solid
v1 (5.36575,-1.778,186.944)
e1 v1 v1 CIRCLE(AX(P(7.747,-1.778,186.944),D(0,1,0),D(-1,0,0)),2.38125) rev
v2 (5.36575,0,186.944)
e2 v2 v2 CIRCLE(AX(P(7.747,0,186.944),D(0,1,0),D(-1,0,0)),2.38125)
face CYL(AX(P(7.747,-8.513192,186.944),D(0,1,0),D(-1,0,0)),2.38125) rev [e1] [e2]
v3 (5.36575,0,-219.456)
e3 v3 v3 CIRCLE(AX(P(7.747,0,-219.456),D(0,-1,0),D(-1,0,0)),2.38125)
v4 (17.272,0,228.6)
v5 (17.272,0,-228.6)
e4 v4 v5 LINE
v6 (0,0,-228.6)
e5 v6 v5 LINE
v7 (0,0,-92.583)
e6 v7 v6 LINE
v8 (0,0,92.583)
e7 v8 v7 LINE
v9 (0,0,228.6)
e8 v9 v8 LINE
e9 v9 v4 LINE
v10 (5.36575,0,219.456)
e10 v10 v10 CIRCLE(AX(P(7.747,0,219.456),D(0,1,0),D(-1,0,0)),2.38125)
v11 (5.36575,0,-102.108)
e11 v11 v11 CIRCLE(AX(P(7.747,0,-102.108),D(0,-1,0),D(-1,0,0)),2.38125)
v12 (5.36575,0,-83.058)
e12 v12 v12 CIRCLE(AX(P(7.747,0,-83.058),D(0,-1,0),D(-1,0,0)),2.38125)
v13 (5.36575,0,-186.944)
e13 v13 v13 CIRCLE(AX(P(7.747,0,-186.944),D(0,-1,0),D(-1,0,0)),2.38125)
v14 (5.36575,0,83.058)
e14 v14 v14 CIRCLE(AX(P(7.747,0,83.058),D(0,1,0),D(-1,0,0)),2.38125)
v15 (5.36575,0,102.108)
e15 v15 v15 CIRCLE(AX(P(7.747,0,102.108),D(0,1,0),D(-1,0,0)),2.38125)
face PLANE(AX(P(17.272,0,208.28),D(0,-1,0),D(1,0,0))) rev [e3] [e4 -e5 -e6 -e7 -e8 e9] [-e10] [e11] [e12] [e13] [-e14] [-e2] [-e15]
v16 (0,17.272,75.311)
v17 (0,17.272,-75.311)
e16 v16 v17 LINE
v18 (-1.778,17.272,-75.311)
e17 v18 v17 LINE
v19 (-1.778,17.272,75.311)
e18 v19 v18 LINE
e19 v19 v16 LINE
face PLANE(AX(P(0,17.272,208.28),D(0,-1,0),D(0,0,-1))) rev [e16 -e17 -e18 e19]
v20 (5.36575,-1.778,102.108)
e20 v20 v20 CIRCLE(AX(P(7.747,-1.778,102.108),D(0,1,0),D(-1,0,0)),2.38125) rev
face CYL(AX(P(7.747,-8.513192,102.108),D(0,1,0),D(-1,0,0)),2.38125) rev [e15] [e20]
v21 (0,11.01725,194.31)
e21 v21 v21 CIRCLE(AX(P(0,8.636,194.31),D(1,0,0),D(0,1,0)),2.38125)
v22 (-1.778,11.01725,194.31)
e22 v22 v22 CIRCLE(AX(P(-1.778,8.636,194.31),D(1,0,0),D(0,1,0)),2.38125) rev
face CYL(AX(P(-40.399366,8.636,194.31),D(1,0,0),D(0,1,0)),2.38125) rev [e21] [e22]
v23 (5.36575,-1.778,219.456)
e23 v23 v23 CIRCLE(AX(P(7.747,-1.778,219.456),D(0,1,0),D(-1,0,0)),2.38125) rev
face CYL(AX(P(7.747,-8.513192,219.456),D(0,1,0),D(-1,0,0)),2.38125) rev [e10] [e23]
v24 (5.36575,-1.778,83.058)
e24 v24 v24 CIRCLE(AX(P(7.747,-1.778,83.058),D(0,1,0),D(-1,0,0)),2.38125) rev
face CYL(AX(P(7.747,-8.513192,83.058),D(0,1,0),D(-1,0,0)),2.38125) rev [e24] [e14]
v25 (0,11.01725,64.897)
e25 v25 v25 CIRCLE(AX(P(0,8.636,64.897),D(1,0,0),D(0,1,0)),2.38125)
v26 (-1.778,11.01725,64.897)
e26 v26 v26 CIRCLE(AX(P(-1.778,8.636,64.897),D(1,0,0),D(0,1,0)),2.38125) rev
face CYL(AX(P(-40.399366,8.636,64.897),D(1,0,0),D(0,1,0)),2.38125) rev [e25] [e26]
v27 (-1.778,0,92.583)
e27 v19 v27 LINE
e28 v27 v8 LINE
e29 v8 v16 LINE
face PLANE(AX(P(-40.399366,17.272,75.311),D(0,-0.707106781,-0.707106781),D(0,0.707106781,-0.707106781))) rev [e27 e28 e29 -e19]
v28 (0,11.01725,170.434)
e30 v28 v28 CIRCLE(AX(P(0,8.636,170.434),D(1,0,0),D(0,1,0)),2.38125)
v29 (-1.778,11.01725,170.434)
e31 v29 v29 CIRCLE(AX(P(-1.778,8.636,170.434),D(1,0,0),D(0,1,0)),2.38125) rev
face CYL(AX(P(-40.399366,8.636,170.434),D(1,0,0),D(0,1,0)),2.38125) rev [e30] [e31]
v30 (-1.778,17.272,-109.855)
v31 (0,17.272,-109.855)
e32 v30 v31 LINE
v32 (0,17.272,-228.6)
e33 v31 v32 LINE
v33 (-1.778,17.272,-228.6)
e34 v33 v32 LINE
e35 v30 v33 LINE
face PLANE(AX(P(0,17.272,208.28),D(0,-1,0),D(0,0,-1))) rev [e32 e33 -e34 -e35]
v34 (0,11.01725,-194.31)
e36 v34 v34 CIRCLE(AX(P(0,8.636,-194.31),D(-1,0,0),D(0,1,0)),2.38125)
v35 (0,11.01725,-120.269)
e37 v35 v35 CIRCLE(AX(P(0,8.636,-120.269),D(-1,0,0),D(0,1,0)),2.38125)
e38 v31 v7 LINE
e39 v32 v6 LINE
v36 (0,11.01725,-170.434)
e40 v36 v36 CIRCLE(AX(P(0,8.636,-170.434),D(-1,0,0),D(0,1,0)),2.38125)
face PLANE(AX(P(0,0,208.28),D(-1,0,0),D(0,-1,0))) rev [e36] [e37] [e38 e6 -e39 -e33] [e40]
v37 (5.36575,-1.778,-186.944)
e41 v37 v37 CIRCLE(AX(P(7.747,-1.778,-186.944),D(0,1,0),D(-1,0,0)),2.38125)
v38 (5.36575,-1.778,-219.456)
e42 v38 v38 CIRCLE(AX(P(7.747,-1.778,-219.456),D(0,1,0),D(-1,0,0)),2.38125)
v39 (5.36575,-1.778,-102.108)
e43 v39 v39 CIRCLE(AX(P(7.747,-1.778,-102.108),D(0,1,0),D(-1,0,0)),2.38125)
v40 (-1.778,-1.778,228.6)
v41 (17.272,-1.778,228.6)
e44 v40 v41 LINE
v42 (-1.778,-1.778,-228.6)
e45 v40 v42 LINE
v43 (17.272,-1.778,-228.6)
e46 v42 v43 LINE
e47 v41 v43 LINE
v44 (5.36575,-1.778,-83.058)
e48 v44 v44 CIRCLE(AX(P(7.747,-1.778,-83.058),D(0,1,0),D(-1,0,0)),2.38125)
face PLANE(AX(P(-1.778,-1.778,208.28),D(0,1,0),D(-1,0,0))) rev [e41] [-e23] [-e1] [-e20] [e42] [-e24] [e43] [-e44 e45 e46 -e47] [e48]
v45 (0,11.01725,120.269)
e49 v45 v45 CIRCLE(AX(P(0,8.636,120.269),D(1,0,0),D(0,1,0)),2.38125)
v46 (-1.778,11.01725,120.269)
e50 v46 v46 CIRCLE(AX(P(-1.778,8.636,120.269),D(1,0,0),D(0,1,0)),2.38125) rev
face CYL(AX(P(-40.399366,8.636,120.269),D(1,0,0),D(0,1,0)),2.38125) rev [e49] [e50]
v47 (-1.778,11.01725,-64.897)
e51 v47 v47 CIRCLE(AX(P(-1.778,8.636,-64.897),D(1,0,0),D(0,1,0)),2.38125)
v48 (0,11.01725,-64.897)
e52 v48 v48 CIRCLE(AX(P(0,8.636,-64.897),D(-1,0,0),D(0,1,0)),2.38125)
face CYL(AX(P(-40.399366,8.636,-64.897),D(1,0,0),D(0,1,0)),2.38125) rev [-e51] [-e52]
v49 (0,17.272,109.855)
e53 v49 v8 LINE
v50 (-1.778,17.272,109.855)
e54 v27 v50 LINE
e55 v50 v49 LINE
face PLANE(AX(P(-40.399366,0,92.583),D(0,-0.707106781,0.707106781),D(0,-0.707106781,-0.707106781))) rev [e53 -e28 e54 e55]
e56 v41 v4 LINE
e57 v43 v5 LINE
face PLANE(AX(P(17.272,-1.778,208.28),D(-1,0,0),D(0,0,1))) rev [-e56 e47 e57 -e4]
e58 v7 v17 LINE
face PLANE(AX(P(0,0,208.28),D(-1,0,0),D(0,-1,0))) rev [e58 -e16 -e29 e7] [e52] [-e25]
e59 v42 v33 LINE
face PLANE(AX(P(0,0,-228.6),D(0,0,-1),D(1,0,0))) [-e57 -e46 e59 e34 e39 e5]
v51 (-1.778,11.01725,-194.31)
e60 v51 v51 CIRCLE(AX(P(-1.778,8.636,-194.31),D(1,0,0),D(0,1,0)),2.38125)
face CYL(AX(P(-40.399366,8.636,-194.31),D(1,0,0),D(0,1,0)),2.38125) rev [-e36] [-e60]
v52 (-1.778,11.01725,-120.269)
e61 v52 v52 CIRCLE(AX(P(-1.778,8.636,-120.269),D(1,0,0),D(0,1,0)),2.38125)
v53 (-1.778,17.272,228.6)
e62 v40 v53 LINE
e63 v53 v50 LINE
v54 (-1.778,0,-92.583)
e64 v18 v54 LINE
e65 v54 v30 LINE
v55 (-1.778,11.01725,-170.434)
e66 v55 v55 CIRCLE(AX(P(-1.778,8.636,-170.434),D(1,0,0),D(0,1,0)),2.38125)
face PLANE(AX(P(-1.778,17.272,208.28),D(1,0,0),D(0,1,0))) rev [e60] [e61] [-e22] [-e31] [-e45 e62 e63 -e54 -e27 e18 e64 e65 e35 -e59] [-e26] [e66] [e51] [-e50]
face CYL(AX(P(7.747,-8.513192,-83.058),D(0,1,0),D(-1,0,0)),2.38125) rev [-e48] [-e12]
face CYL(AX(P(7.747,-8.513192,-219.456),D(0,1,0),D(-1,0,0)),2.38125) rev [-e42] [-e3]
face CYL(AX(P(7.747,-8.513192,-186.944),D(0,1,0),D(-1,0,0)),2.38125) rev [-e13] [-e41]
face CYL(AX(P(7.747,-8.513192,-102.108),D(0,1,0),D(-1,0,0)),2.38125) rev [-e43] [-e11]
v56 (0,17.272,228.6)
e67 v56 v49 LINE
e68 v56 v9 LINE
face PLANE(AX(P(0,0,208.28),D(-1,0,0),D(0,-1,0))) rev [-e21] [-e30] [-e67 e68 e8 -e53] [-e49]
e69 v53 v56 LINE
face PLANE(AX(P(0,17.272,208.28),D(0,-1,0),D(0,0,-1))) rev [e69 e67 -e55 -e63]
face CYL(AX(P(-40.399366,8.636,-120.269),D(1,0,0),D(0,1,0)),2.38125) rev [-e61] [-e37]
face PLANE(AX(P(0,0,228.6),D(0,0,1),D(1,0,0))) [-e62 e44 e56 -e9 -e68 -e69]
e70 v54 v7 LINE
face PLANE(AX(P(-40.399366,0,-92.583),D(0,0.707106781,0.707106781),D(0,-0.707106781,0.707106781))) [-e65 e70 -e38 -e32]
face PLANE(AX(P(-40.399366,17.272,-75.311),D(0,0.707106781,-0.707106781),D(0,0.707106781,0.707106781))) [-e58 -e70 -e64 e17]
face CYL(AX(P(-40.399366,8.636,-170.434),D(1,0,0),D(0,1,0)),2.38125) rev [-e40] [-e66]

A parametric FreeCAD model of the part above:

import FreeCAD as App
import Part
import Sketcher
Q = App.Units.Quantity

doc = App.newDocument("Part")
body = doc.addObject("PartDesign::Body", "Body")

sketch1 = body.newObject("Sketcher::SketchObject", "Sketch")
sketch1.AttachmentSupport = (doc.getObject("XY_Plane"), [""])
sketch1.MapMode = "FlatFace"
sketch1.addGeometry(Part.LineSegment(App.Vector(0, 0, 0), App.Vector(0, 17.272, 0)), False)
sketch1.addGeometry(Part.LineSegment(App.Vector(0, 17.272, 0), App.Vector(-1.778, 17.272, 0)), False)
sketch1.addGeometry(Part.LineSegment(App.Vector(-1.778, 17.272, 0), App.Vector(-1.778, -1.778, 0)), False)
sketch1.addGeometry(Part.LineSegment(App.Vector(-1.778, -1.778, 0), App.Vector(17.272, -1.778, 0)), False)
sketch1.addGeometry(Part.LineSegment(App.Vector(17.272, -1.778, 0), App.Vector(17.272, 0, 0)), False)
sketch1.addGeometry(Part.LineSegment(App.Vector(17.272, 0, 0), App.Vector(0, 0, 0)), False)
sketch1.addConstraint(Sketcher.Constraint("Coincident", 0, 2, 1, 1))
sketch1.addConstraint(Sketcher.Constraint("Coincident", 1, 2, 2, 1))
sketch1.addConstraint(Sketcher.Constraint("Coincident", 2, 2, 3, 1))
sketch1.addConstraint(Sketcher.Constraint("Coincident", 3, 2, 4, 1))
sketch1.addConstraint(Sketcher.Constraint("Coincident", 4, 2, 5, 1))
sketch1.addConstraint(Sketcher.Constraint("Coincident", 5, 2, 0, 1))
sketch1.addConstraint(Sketcher.Constraint("Vertical", 0))
sketch1.addConstraint(Sketcher.Constraint("Horizontal", 1))
sketch1.addConstraint(Sketcher.Constraint("Vertical", 2))
sketch1.addConstraint(Sketcher.Constraint("Horizontal", 3))
sketch1.addConstraint(Sketcher.Constraint("Vertical", 4))
sketch1.addConstraint(Sketcher.Constraint("Horizontal", 5))
sketch1.addConstraint(Sketcher.Constraint("Coincident", 5, 2, -1, 1))
sketch1.addConstraint(Sketcher.Constraint("Equal", 5, 0))
sketch1.addConstraint(Sketcher.Constraint("Equal", 3, 2))
sketch1.addConstraint(Sketcher.Constraint("DistanceX", 1, 2, 1, 1, Q("0.07 in")))
sketch1.addConstraint(Sketcher.Constraint("DistanceX", 3, 1, 3, 2, Q("0.75 in")))
pad1 = body.newObject("PartDesign::Pad", "Pad")
pad1.Profile = sketch1
pad1.Length = Q("8.2 in")

sketch2 = body.newObject("Sketcher::SketchObject", "Sketch001")
sketch2.AttachmentSupport = (doc.getObject("YZ_Plane"), [""])
sketch2.MapMode = "FlatFace"
sketch2.addGeometry(Part.Circle(App.Vector(8.636, 194.31, 0), App.Vector(0, 0, 1), 2.38125), False)
sketch2.addGeometry(Part.Circle(App.Vector(8.636, 170.434, 0), App.Vector(0, 0, 1), 2.38125), False)
sketch2.addGeometry(Part.Circle(App.Vector(8.636, 120.269, 0), App.Vector(0, 0, 1), 2.38125), False)
sketch2.addGeometry(Part.Circle(App.Vector(8.636, 64.897, 0), App.Vector(0, 0, 1), 2.38125), False)
sketch2.addGeometry(Part.LineSegment(App.Vector(17.272, 109.855, 0), App.Vector(0, 92.583, 0)), False)
sketch2.addGeometry(Part.LineSegment(App.Vector(0, 92.583, 0), App.Vector(17.272, 75.311, 0)), False)
sketch2.addGeometry(Part.LineSegment(App.Vector(17.272, 75.311, 0), App.Vector(17.272, 109.855, 0)), False)
sketch2.addConstraint(Sketcher.Constraint("Coincident", 4, 2, 5, 1))
sketch2.addConstraint(Sketcher.Constraint("Coincident", 5, 2, 6, 1))
sketch2.addConstraint(Sketcher.Constraint("Coincident", 6, 2, 4, 1))
sketch2.addConstraint(Sketcher.Constraint("Vertical", 6))
sketch2.addConstraint(Sketcher.Constraint("Equal", 0, 1))
sketch2.addConstraint(Sketcher.Constraint("Equal", 1, 2))
sketch2.addConstraint(Sketcher.Constraint("Equal", 2, 3))
sketch2.addConstraint(Sketcher.Constraint("PointOnObject", 4, 2, -2))
sketch2.addConstraint(Sketcher.Constraint("Perpendicular", 4, 5))
sketch2.addConstraint(Sketcher.Constraint("Vertical", 0, 3, 1, 3))
sketch2.addConstraint(Sketcher.Constraint("Vertical", 1, 3, 2, 3))
sketch2.addConstraint(Sketcher.Constraint("Vertical", 2, 3, 3, 3))
sketch2.addConstraint(Sketcher.Constraint("Equal", 4, 5))
sketch2.addConstraint(Sketcher.Constraint("Diameter", 0, Q("0.1875 in")))
sketch2.addConstraint(Sketcher.Constraint("DistanceY", 6, 1, 6, 2, Q("1.36 in")))
sketch2.addConstraint(Sketcher.Constraint("DistanceX", -1, 1, 0, 3, Q("0.34 in")))
sketch2.addConstraint(Sketcher.Constraint("DistanceY", -1, 1, 0, 3, Q("7.65 in")))
sketch2.addConstraint(Sketcher.Constraint("DistanceY", -1, 1, 1, 3, Q("6.71 in")))
sketch2.addConstraint(Sketcher.Constraint("DistanceY", 3, 3, 2, 3, Q("2.18 in")))
sketch2.addConstraint(Sketcher.Constraint("DistanceY", 3, 3, 4, 2, Q("1.09 in")))
sketch2.addConstraint(Sketcher.Constraint("DistanceY", -1, 1, 2, 3, Q("4.735 in")))
pocket1 = body.newObject("PartDesign::Pocket", "Pocket")
pocket1.Profile = sketch2
pocket1.Length = Q("0.07 in")

sketch3 = body.newObject("Sketcher::SketchObject", "Sketch002")
sketch3.AttachmentSupport = (doc.getObject("XY_Plane"), [""])
sketch3.MapMode = "FlatFace"
sketch3.AttachmentOffset = App.Placement(App.Vector(0, 0, 8.2 * 25.4), App.Rotation())
sketch3.addGeometry(Part.LineSegment(App.Vector(-1.778, -1.778, 0), App.Vector(17.272, -1.778, 0)), False)
sketch3.addGeometry(Part.LineSegment(App.Vector(17.272, -1.778, 0), App.Vector(17.272, 0, 0)), False)
sketch3.addGeometry(Part.LineSegment(App.Vector(17.272, 0, 0), App.Vector(0, 0, 0)), False)
sketch3.addGeometry(Part.LineSegment(App.Vector(0, 0, 0), App.Vector(0, 17.272, 0)), False)
sketch3.addGeometry(Part.LineSegment(App.Vector(0, 17.272, 0), App.Vector(-1.778, 17.272, 0)), False)
sketch3.addGeometry(Part.LineSegment(App.Vector(-1.778, 17.272, 0), App.Vector(-1.778, -1.778, 0)), False)
sketch3.addConstraint(Sketcher.Constraint("Coincident", 0, 2, 1, 1))
sketch3.addConstraint(Sketcher.Constraint("Coincident", 1, 2, 2, 1))
sketch3.addConstraint(Sketcher.Constraint("Coincident", 2, 2, 3, 1))
sketch3.addConstraint(Sketcher.Constraint("Coincident", 3, 2, 4, 1))
sketch3.addConstraint(Sketcher.Constraint("Coincident", 4, 2, 5, 1))
sketch3.addConstraint(Sketcher.Constraint("Coincident", 5, 2, 0, 1))
sketch3.addConstraint(Sketcher.Constraint("Horizontal", 0))
sketch3.addConstraint(Sketcher.Constraint("Vertical", 1))
sketch3.addConstraint(Sketcher.Constraint("Horizontal", 2))
sketch3.addConstraint(Sketcher.Constraint("Vertical", 3))
sketch3.addConstraint(Sketcher.Constraint("Horizontal", 4))
sketch3.addConstraint(Sketcher.Constraint("Vertical", 5))
sketch3.addConstraint(Sketcher.Constraint("Coincident", 2, 2, -1, 1))
sketch3.addConstraint(Sketcher.Constraint("Equal", 4, 1))
sketch3.addConstraint(Sketcher.Constraint("Equal", 2, 3))
sketch3.addConstraint(Sketcher.Constraint("DistanceX", 0, 1, 0, 2, Q("0.75 in")))
sketch3.addConstraint(Sketcher.Constraint("DistanceX", 2, 2, 2, 1, Q("0.68 in")))
pad2 = body.newObject("PartDesign::Pad", "Pad001")
pad2.Profile = sketch3
pad2.Length = Q("0.8 in")

sketch4 = body.newObject("Sketcher::SketchObject", "Sketch003")
sketch4.AttachmentSupport = (doc.getObject("XZ_Plane"), [""])
sketch4.MapMode = "FlatFace"
sketch4.addGeometry(Part.Circle(App.Vector(7.747, 219.456, 0), App.Vector(0, 0, 1), 2.38125), False)
sketch4.addGeometry(Part.Circle(App.Vector(7.747, 83.058, 0), App.Vector(0, 0, 1), 2.38125), False)
sketch4.addGeometry(Part.Circle(App.Vector(7.747, 102.108, 0), App.Vector(0, 0, 1), 2.38125), False)
sketch4.addGeometry(Part.Circle(App.Vector(7.747, 186.944, 0), App.Vector(0, 0, 1), 2.38125), False)
sketch4.addConstraint(Sketcher.Constraint("Equal", 0, 1))
sketch4.addConstraint(Sketcher.Constraint("Equal", 1, 2))
sketch4.addConstraint(Sketcher.Constraint("Equal", 2, 3))
sketch4.addConstraint(Sketcher.Constraint("Vertical", 0, 3, 1, 3))
sketch4.addConstraint(Sketcher.Constraint("Vertical", 1, 3, 2, 3))
sketch4.addConstraint(Sketcher.Constraint("Vertical", 2, 3, 3, 3))
sketch4.addConstraint(Sketcher.Constraint("Diameter", 0, Q("0.1875 in")))
sketch4.addConstraint(Sketcher.Constraint("DistanceY", -1, 1, 0, 3, Q("8.64 in")))
sketch4.addConstraint(Sketcher.Constraint("DistanceY", -1, 1, 1, 3, Q("3.27 in")))
sketch4.addConstraint(Sketcher.Constraint("DistanceY", -1, 1, 2, 3, Q("4.02 in")))
sketch4.addConstraint(Sketcher.Constraint("DistanceY", -1, 1, 3, 3, Q("7.36 in")))
sketch4.addConstraint(Sketcher.Constraint("DistanceX", -1, 1, 0, 3, Q("0.305 in")))
pocket2 = body.newObject("PartDesign::Pocket", "Pocket001")
pocket2.Profile = sketch4
pocket2.Length = Q("0.07 in")
pocket2.Reversed = True
doc.recompute()

mirrored = body.newObject("PartDesign::Mirrored", "Mirrored")
mirrored.Originals = [pad1, pocket1, pad2, pocket2]
mirrored.MirrorPlane = (doc.getObject("XY_Plane"), [""])
body.Tip = mirrored

doc.recompute()
